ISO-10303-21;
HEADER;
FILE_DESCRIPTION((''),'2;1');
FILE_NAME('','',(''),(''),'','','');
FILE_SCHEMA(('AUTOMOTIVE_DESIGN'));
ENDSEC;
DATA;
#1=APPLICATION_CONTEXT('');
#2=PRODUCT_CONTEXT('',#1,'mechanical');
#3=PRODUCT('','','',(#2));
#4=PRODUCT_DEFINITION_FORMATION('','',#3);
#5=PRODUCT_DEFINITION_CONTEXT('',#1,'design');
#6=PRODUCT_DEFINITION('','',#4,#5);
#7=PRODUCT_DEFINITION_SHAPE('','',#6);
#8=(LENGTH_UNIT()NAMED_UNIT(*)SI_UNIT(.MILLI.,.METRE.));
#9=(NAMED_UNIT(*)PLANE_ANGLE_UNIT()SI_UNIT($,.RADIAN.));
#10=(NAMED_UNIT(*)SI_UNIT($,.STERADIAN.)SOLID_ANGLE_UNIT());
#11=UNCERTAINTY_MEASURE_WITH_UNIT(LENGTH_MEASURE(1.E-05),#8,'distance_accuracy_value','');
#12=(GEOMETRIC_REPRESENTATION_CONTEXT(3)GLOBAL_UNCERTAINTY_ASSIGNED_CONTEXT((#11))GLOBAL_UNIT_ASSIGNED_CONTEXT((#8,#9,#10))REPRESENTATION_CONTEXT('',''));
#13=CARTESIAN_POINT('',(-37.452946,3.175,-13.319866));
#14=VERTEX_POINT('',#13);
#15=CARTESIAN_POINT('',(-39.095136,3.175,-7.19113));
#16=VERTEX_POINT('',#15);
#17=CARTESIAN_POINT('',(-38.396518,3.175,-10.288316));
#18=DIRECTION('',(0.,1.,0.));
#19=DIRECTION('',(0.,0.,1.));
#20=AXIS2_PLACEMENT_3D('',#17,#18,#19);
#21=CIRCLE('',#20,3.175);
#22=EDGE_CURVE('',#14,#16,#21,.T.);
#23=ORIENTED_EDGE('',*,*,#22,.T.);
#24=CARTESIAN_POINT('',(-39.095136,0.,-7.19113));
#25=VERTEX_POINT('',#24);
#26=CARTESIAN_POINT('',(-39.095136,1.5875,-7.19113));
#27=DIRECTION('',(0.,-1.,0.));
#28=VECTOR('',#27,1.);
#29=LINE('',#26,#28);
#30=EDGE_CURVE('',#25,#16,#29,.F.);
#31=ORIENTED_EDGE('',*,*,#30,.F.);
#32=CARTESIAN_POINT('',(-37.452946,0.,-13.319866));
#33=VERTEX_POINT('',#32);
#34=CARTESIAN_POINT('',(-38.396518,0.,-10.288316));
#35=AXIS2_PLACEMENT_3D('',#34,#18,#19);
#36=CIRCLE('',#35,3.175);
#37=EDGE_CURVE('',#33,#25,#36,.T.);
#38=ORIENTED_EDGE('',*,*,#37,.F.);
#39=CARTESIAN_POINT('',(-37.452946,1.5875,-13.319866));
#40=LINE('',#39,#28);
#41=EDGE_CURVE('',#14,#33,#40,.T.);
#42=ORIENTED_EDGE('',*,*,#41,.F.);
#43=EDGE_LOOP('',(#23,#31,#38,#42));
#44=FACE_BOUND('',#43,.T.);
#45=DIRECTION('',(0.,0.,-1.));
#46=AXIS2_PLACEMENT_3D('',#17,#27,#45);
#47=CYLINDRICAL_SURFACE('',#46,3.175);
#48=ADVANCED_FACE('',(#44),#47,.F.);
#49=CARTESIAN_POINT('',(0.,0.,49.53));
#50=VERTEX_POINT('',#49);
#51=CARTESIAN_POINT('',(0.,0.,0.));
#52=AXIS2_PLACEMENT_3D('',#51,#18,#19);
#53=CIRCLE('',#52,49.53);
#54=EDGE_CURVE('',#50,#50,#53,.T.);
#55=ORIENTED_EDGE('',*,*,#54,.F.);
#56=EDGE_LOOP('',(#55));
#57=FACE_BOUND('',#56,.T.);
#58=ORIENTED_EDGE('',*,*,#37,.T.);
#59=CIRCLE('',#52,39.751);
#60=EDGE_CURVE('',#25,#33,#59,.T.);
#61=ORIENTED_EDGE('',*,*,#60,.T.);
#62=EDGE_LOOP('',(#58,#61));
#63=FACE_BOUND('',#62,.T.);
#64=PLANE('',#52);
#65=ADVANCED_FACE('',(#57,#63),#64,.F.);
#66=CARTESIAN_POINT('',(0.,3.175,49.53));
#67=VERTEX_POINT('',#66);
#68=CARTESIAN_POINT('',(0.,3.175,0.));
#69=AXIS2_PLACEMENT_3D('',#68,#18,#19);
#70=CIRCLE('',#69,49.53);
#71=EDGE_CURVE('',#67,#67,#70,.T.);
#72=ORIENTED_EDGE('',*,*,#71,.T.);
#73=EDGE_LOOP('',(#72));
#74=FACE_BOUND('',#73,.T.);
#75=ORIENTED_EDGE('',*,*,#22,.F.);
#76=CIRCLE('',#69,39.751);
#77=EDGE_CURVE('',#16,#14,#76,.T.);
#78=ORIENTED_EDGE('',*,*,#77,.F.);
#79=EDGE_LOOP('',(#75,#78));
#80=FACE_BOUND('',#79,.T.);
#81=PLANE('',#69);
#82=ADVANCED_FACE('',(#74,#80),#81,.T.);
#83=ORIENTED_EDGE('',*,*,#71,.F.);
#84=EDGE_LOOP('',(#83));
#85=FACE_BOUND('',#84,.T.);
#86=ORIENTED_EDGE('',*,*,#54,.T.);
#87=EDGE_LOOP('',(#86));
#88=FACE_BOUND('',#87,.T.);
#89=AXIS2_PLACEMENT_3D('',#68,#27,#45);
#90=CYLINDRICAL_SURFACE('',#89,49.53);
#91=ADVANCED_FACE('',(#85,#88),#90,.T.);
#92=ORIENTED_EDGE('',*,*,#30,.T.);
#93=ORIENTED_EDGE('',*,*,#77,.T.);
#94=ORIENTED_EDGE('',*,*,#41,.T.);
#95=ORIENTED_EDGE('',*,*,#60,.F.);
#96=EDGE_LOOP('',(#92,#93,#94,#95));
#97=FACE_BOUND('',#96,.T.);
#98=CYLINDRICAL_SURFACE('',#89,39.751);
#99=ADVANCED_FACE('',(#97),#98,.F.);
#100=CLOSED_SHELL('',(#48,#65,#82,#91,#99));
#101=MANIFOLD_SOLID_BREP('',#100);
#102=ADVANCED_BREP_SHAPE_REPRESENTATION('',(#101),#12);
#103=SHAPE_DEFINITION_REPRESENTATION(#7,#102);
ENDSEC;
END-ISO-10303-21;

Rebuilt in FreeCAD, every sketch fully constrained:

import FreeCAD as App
import Part
import Sketcher
Q = App.Units.Quantity

doc = App.newDocument("Part")
body = doc.addObject("PartDesign::Body", "Body")

# Sketch on XZ plane
sketch1 = body.newObject("Sketcher::SketchObject", "Sketch")
sketch1.AttachmentSupport = (doc.getObject("XZ_Plane"), [""])
sketch1.MapMode = "FlatFace"
sketch1.addGeometry([
    Part.Circle(App.Vector(0, 0, 0), App.Vector(0, 0, 1), 50),
    Part.Circle(App.Vector(0, 0, 0), App.Vector(0, 0, 1), 40),
], False)
sketch1.addConstraint([
    Sketcher.Constraint("Coincident", 0, 3, -1, 1),
    Sketcher.Constraint("Coincident", 1, 3, -1, 1),
    Sketcher.Constraint("Diameter", 0, Q("3.9 in")),
    Sketcher.Constraint("Diameter", 1, Q("3.13 in")),
])
pad1 = body.newObject("PartDesign::Pad", "Pad")
pad1.Profile = sketch1
pad1.Length = Q("0.125 in")
pad1.Reversed = True

# Sketch on XZ plane
sketch2 = body.newObject("Sketcher::SketchObject", "Sketch001")
sketch2.AttachmentSupport = (doc.getObject("XZ_Plane"), [""])
sketch2.MapMode = "FlatFace"
sketch2.addGeometry(Part.Circle(App.Vector(-38.4, -10.3, 0), App.Vector(0, 0, 1), 3.2), False)
sketch2.addConstraint([
    Sketcher.Constraint("Diameter", 0, Q("0.25 in")),
    Sketcher.Constraint("DistanceX", 0, 3, -1, 1, 38.396518),
    Sketcher.Constraint("DistanceY", 0, 3, -1, 1, 10.288316),
])
pocket1 = body.newObject("PartDesign::Pocket", "Pocket")
pocket1.Profile = sketch2
pocket1.Type = "ThroughAll"

doc.recompute()
